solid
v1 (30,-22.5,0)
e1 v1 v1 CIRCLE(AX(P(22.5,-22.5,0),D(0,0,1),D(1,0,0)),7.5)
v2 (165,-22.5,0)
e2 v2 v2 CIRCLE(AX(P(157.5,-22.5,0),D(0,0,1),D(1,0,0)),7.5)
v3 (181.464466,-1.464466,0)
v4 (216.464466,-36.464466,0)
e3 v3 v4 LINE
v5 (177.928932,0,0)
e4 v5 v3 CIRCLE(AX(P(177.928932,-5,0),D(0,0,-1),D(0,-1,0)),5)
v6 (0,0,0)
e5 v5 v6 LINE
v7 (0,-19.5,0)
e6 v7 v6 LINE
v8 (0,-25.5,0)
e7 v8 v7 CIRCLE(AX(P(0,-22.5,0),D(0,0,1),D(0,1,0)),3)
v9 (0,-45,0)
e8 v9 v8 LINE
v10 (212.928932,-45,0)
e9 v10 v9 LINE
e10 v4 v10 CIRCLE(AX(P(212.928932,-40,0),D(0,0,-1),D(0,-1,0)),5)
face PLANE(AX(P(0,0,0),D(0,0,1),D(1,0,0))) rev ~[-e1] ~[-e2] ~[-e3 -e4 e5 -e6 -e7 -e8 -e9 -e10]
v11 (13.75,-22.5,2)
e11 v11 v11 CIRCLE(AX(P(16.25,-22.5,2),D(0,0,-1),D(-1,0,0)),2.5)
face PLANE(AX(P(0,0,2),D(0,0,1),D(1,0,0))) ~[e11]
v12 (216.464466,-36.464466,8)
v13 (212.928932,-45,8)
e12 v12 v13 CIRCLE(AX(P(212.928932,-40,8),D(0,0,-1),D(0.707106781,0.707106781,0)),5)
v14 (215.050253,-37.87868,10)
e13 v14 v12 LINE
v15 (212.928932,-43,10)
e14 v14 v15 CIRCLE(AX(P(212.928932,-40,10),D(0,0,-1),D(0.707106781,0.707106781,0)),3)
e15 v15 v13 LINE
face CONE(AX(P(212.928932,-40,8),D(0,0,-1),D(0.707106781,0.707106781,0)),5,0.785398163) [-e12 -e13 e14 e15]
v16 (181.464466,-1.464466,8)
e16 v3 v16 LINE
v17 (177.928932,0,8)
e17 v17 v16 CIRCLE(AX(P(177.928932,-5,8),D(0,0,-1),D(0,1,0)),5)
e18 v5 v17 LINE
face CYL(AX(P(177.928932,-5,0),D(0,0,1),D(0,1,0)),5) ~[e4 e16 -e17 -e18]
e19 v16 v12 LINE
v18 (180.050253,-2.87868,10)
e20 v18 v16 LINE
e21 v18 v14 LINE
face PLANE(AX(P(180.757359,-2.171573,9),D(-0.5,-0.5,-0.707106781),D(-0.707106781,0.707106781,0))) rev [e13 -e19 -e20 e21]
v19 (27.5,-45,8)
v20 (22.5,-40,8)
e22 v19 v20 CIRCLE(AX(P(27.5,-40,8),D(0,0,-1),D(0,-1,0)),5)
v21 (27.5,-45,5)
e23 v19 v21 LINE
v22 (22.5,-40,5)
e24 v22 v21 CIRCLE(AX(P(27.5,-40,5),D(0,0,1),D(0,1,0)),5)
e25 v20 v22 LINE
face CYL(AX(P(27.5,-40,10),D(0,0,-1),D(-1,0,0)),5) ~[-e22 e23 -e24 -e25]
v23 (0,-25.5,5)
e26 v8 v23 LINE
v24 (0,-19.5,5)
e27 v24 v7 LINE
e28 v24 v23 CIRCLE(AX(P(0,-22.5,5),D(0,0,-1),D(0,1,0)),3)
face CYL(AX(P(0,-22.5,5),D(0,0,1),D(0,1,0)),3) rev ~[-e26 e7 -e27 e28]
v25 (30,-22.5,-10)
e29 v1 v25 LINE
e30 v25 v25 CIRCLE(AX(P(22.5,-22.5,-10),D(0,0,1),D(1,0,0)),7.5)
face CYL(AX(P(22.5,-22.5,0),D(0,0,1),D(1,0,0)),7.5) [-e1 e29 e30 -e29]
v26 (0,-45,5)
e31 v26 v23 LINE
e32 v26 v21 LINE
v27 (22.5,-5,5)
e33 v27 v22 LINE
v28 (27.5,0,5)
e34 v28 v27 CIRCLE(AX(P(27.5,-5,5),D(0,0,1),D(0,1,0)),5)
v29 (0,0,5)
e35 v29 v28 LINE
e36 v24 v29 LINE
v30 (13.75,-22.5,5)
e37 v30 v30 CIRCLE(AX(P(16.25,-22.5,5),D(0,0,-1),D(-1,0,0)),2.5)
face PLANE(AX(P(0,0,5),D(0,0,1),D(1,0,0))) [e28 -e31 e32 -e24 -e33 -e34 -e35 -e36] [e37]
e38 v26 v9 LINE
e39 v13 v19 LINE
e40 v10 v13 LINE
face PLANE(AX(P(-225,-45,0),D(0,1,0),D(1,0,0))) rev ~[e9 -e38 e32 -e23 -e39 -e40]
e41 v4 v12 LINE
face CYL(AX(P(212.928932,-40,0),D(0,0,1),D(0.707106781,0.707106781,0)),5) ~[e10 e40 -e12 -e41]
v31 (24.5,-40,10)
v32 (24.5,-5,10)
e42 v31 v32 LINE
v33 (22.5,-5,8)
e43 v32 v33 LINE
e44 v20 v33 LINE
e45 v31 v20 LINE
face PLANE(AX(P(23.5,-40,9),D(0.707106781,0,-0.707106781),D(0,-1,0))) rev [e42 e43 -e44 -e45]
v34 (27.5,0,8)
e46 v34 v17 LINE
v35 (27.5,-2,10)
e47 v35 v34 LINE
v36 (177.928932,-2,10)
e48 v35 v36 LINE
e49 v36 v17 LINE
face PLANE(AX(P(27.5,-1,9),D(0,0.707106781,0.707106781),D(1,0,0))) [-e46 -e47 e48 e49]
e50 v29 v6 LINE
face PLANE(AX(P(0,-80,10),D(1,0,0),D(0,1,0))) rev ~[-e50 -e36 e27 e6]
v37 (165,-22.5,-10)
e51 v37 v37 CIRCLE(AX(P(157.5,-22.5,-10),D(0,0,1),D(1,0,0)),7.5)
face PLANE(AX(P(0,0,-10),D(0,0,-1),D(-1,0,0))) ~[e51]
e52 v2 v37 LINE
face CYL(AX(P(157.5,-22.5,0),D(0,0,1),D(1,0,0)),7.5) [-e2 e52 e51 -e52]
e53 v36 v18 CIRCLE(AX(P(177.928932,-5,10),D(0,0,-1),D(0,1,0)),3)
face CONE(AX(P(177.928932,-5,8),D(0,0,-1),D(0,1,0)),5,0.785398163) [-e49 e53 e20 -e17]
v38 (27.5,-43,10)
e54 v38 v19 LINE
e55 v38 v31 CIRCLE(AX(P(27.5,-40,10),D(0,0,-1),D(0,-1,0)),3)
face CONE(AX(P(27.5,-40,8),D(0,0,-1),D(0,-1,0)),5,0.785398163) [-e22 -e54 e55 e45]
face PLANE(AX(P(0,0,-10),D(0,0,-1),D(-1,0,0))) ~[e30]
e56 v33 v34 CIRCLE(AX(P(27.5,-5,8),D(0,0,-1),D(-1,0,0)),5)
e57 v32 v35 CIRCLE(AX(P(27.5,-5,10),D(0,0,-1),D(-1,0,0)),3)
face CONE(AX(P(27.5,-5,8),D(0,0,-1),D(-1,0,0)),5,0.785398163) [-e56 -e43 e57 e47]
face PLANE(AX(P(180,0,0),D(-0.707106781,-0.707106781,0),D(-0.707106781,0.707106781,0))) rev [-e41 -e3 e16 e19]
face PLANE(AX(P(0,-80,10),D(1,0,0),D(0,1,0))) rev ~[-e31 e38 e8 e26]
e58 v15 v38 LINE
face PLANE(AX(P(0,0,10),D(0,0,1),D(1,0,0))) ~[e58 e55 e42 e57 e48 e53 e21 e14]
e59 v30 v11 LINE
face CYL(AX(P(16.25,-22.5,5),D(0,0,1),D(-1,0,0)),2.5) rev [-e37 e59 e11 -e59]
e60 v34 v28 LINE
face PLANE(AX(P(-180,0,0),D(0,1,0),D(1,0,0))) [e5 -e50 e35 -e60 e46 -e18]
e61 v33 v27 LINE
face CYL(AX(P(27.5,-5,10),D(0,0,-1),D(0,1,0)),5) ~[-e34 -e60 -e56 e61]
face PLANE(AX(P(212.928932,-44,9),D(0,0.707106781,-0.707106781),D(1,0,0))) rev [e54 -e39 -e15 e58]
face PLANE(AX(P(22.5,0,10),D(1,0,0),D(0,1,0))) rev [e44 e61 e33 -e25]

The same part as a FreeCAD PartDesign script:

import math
import FreeCAD as App
import Part
import Sketcher
from FreeCAD import Vector


def edges_at(feature, points):
    """Names of the edges that pass closest to the given points."""
    edges = feature.Shape.Edges
    near = lambda p: min(range(len(edges)), key=lambda i: edges[i].distToShape(Part.Vertex(*p))[0])
    return sorted({f"Edge{near(p) + 1}" for p in points})


def add_polygon(sketch, points):
    """Adds a closed chain of lines whose ends are joined by coincident constraints."""
    first, n = sketch.GeometryCount, len(points)
    for a, b in zip(points, points[1:] + points[:1]):
        sketch.addGeometry(Part.LineSegment(App.Vector(*a, 0), App.Vector(*b, 0)), False)
    for i in range(n):
        sketch.addConstraint(Sketcher.Constraint("Coincident", first + i, 2, first + (i + 1) % n, 1))

doc = App.newDocument("Part")
body = doc.addObject("PartDesign::Body", "Body")

# Sketch on XY plane
sketch1 = body.newObject("Sketcher::SketchObject", "Sketch")
sketch1.AttachmentSupport = (doc.getObject("XY_Plane"), [""])
sketch1.MapMode = "FlatFace"
add_polygon(sketch1, [(0, 0), (-180, 0), (-225, -45), (0, -45)])  # lines 0-3
sketch1.addConstraint([
    Sketcher.Constraint("Horizontal", 0),
    Sketcher.Constraint("Horizontal", 2),
    Sketcher.Constraint("Vertical", 3),
    Sketcher.Constraint("Coincident", 3, 2, -1, 1),
    Sketcher.Constraint("DistanceX", 0, 2, 0, 1, 180.0),
    Sketcher.Constraint("DistanceX", 2, 1, 2, 2, 225.0),
    Sketcher.Constraint("DistanceY", 3, 1, 3, 2, 45.0),
])
pad1 = body.newObject("PartDesign::Pad", "Pad")
pad1.Profile = sketch1
pad1.Length = 10

# Sketch on XY plane
sketch2 = body.newObject("Sketcher::SketchObject", "Sketch001")
sketch2.AttachmentSupport = (doc.getObject("XY_Plane"), [""])
sketch2.MapMode = "FlatFace"
sketch2.AttachmentOffset = App.Placement(Vector(0, 0, 10), App.Rotation())
add_polygon(sketch2, [(0, -45), (0, 0), (-22, 0), (-22, -45)])  # lines 0-3
sketch2.addConstraint([
    Sketcher.Constraint("Vertical", 0),
    Sketcher.Constraint("Horizontal", 1),
    Sketcher.Constraint("Vertical", 2),
    Sketcher.Constraint("Horizontal", 3),
    Sketcher.Constraint("Coincident", 0, 2, -1, 1),
    Sketcher.Constraint("DistanceX", 1, 2, 1, 1, 22.5),
    Sketcher.Constraint("DistanceY", 0, 1, 0, 2, 45.0),
])
pocket1 = body.newObject("PartDesign::Pocket", "Pocket")
pocket1.Profile = sketch2
pocket1.Length = 5

# Sketch on XY plane
sketch3 = body.newObject("Sketcher::SketchObject", "Sketch002")
sketch3.AttachmentSupport = (doc.getObject("XY_Plane"), [""])
sketch3.MapMode = "FlatFace"
sketch3.AttachmentOffset = App.Placement(Vector(0, 0, 5), App.Rotation())
sketch3.addGeometry([
    Part.LineSegment(Vector(0, -25.5, 0), Vector(0, -19.5, 0)),
    Part.ArcOfCircle(Part.Circle(Vector(0, -22.5, 0), Vector(0, 0, 1), 3), math.radians(90), math.radians(270)),
], False)
sketch3.addConstraint([
    Sketcher.Constraint("Coincident", 0, 1, 1, 2),
    Sketcher.Constraint("Coincident", 1, 1, 0, 2),
    Sketcher.Constraint("Vertical", 0),
    Sketcher.Constraint("PointOnObject", 1, 3, -2),
    Sketcher.Constraint("PointOnObject", 0, 1, -2),
    Sketcher.Constraint("Radius", 1, 3.0),
    Sketcher.Constraint("DistanceY", 1, 3, -1, 1, 22.5),
])
pocket2 = body.newObject("PartDesign::Pocket", "Pocket001")
pocket2.Profile = sketch3
pocket2.Length = 5

# Sketch on XY plane
sketch4 = body.newObject("Sketcher::SketchObject", "Sketch003")
sketch4.AttachmentSupport = (doc.getObject("XY_Plane"), [""])
sketch4.MapMode = "FlatFace"
sketch4.addGeometry([
    Part.Circle(Vector(-22, -22, 0), Vector(0, 0, 1), 8),
    Part.Circle(Vector(-158, -22, 0), Vector(0, 0, 1), 8),
], False)
sketch4.addConstraint([
    Sketcher.Constraint("Equal", 0, 1),
    Sketcher.Constraint("Horizontal", 0, 3, 1, 3),
    Sketcher.Constraint("Diameter", 0, 15.0),
    Sketcher.Constraint("DistanceX", 1, 3, 0, 3, 135.0),
    Sketcher.Constraint("DistanceX", 0, 3, -1, 1, 22.5),
    Sketcher.Constraint("DistanceY", 0, 3, -1, 1, 22.5),
])
pad2 = body.newObject("PartDesign::Pad", "Pad001")
pad2.Profile = sketch4
pad2.Length = 10
pad2.Reversed = True
doc.recompute()

fillet = body.newObject("PartDesign::Fillet", "Fillet")
fillet.Base = (pad2, edges_at(pad2, [
    (-225, -45, 5),
    (-180, 0, 5),
    (-22.5, 0, 7.5),
    (-22.5, -45, 7.5),
]))
fillet.Radius = 5
doc.recompute()

chamfer = body.newObject("PartDesign::Chamfer", "Chamfer")
chamfer.Base = (fillet, edges_at(fillet, [
    (-120.215, -45, 10),
    (-23.965, -43.535, 10),
    (-22.5, -22.5, 10),
    (-23.965, -1.464, 10),
    (-102.715, 0, 10),
    (-179.842, -0.381, 10),
    (-198.964, -18.965, 10),
    (-217.548, -41.913, 10),
]))
chamfer.Size = 2

# Sketch on XY plane
sketch5 = body.newObject("Sketcher::SketchObject", "Sketch004")
sketch5.AttachmentSupport = (doc.getObject("XY_Plane"), [""])
sketch5.MapMode = "FlatFace"
sketch5.AttachmentOffset = App.Placement(Vector(0, 0, 5), App.Rotation())
sketch5.addGeometry(Part.Circle(Vector(-16.2, -22.5, 0), Vector(0, 0, 1), 2.5), False)
sketch5.addConstraint([
    Sketcher.Constraint("Diameter", 0, 5.0),
    Sketcher.Constraint("DistanceY", 0, 3, -1, 1, 22.5),
    Sketcher.Constraint("DistanceX", 0, 3, -1, 1, 16.25),
])
pocket3 = body.newObject("PartDesign::Pocket", "Pocket002")
pocket3.Profile = sketch5
pocket3.Length = 3
doc.recompute()

mirrored = body.newObject("PartDesign::Mirrored", "Mirrored")
mirrored.TransformMode = "Transform body"
mirrored.MirrorPlane = (doc.getObject("YZ_Plane"), [""])
body.Tip = mirrored

# Sketch on XY plane
sketch6 = body.newObject("Sketcher::SketchObject", "Sketch005")
sketch6.AttachmentSupport = (doc.getObject("XY_Plane"), [""])
sketch6.MapMode = "FlatFace"
sketch6.AttachmentOffset = App.Placement(Vector(0, 0, 10), App.Rotation())
add_polygon(sketch6, [(0, -80), (0, 20), (-240, 20), (-240, -80)])  # lines 0-3
sketch6.addConstraint([
    Sketcher.Constraint("Vertical", 0),
    Sketcher.Constraint("Horizontal", 1),
    Sketcher.Constraint("Vertical", 2),
    Sketcher.Constraint("Horizontal", 3),
    Sketcher.Constraint("PointOnObject", 0, 2, -2),
    Sketcher.Constraint("DistanceX", 1, 2, 1, 1, 240.0),
    Sketcher.Constraint("DistanceY", 0, 1, 0, 2, 100.0),
    Sketcher.Constraint("DistanceY", -1, 1, 0, 2, 20.0),
])
pocket4 = body.newObject("PartDesign::Pocket", "Pocket003")
pocket4.Profile = sketch6
pocket4.Length = 20

doc.recompute()
